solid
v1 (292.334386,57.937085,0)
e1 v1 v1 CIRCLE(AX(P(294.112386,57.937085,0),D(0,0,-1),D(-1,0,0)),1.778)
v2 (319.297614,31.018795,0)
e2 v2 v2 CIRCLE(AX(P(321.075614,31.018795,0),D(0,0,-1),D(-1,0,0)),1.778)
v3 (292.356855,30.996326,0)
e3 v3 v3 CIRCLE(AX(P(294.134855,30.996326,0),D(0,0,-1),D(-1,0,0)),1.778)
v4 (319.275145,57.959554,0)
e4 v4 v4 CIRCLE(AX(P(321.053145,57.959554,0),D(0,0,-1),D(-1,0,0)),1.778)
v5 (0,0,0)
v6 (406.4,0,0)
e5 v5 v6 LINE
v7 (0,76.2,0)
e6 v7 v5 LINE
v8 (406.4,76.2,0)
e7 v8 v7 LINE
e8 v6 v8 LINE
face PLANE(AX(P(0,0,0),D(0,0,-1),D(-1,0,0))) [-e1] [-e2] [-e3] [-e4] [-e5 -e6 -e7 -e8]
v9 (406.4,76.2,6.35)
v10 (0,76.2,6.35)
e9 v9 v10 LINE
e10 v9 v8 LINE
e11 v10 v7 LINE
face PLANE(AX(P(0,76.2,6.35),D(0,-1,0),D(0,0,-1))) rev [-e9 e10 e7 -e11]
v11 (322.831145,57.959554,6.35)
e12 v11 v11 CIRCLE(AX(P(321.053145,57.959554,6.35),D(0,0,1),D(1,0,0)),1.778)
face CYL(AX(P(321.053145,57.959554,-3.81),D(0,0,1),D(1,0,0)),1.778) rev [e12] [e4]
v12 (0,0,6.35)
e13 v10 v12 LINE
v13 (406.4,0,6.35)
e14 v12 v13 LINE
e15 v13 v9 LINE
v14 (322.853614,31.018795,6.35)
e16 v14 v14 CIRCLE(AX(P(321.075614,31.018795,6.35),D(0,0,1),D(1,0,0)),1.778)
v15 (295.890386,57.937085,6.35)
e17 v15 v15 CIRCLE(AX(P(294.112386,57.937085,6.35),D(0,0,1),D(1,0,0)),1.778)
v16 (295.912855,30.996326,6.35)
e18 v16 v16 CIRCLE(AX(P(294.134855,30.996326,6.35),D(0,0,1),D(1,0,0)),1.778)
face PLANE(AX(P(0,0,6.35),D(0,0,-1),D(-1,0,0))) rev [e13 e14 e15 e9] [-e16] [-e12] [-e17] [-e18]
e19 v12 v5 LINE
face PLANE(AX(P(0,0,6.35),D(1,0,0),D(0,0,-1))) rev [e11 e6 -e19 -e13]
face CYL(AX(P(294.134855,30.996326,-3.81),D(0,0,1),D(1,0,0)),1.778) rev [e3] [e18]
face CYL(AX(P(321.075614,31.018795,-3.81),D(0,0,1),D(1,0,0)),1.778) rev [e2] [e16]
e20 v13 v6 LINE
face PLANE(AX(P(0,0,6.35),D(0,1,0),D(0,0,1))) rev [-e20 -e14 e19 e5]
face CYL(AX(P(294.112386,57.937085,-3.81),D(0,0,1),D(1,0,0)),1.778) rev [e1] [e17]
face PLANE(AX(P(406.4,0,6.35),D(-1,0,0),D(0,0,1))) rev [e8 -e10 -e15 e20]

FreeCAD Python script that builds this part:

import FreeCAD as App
import Part
import Sketcher
Q = App.Units.Quantity


def add_polygon(sketch, points):
    """Adds a closed chain of lines whose ends are joined by coincident constraints."""
    first, n = sketch.GeometryCount, len(points)
    for a, b in zip(points, points[1:] + points[:1]):
        sketch.addGeometry(Part.LineSegment(App.Vector(*a, 0), App.Vector(*b, 0)), False)
    for i in range(n):
        sketch.addConstraint(Sketcher.Constraint("Coincident", first + i, 2, first + (i + 1) % n, 1))

doc = App.newDocument("Part")
params = doc.addObject("Spreadsheet::Sheet", "Params")
for row, (alias, value) in enumerate([
    ("sketch1_width", "16 in"),
    ("sketch1_height", "3 in"),
    ("pad1_length", "0.25 in"),
    ("sketch2_diameter", "0.14 in"),
    ("pocket1_length", "0.4 in"),
], start=1):
    params.set(f"A{row}", alias)
    params.set(f"B{row}", "=" + value)
    params.setAlias(f"B{row}", alias)

body = doc.addObject("PartDesign::Body", "Body")

sketch1 = body.newObject("Sketcher::SketchObject", "Sketch")
sketch1.AttachmentSupport = (doc.getObject("XY_Plane"), [""])
sketch1.MapMode = "FlatFace"
add_polygon(sketch1, [(0, 76), (0, 0), (406, 0), (406, 76)])
sketch1.addConstraint(Sketcher.Constraint("Vertical", 0))
sketch1.addConstraint(Sketcher.Constraint("Horizontal", 1))
sketch1.addConstraint(Sketcher.Constraint("Vertical", 2))
sketch1.addConstraint(Sketcher.Constraint("Horizontal", 3))
sketch1.addConstraint(Sketcher.Constraint("Coincident", 0, 2, -1, 1))
sketch1.addConstraint(Sketcher.Constraint("DistanceX", 1, 1, 1, 2, Q("16 in")))
sketch1.addConstraint(Sketcher.Constraint("DistanceY", 0, 2, 0, 1, Q("3 in")))
sketch1.setExpression("Constraints[9]", "Params.sketch1_width")
sketch1.setExpression("Constraints[10]", "Params.sketch1_height")
pad1 = body.newObject("PartDesign::Pad", "Pad")
pad1.Profile = sketch1
pad1.setExpression("Length", "Params.pad1_length")

sketch2 = body.newObject("Sketcher::SketchObject", "Sketch001")
sketch2.AttachmentSupport = (doc.getObject("XY_Plane"), [""])
sketch2.MapMode = "FlatFace"
sketch2.AttachmentOffset = App.Placement(App.Vector(0, 0, 0.25 * 25.4), App.Rotation())
sketch2.addGeometry(Part.Circle(App.Vector(294.1, 57.9, 0), App.Vector(0, 0, 1), 1.8), False)
sketch2.addGeometry(Part.Circle(App.Vector(321.1, 58, 0), App.Vector(0, 0, 1), 1.8), False)
sketch2.addGeometry(Part.Circle(App.Vector(321.1, 31, 0), App.Vector(0, 0, 1), 1.8), False)
sketch2.addGeometry(Part.Circle(App.Vector(294.1, 31, 0), App.Vector(0, 0, 1), 1.8), False)
sketch2.addConstraint(Sketcher.Constraint("Equal", 0, 1))
sketch2.addConstraint(Sketcher.Constraint("Equal", 1, 2))
sketch2.addConstraint(Sketcher.Constraint("Equal", 2, 3))
sketch2.addConstraint(Sketcher.Constraint("Diameter", 0, Q("0.14 in")))
sketch2.addConstraint(Sketcher.Constraint("DistanceX", 0, 3, 1, 3, 26.940759))
sketch2.addConstraint(Sketcher.Constraint("DistanceY", 0, 3, 1, 3, 0.022469))
sketch2.addConstraint(Sketcher.Constraint("DistanceX", 1, 3, 2, 3, 0.022469))
sketch2.addConstraint(Sketcher.Constraint("DistanceY", 2, 3, 1, 3, 26.940759))
sketch2.addConstraint(Sketcher.Constraint("DistanceX", 3, 3, 2, 3, 26.940759))
sketch2.addConstraint(Sketcher.Constraint("DistanceY", 3, 3, 2, 3, 0.022469))
sketch2.addConstraint(Sketcher.Constraint("DistanceX", -1, 1, 0, 3, 294.112386))
sketch2.addConstraint(Sketcher.Constraint("DistanceY", -1, 1, 0, 3, 57.937085))
sketch2.setExpression("Constraints[3]", "Params.sketch2_diameter")
pocket1 = body.newObject("PartDesign::Pocket", "Pocket")
pocket1.Profile = sketch2
pocket1.setExpression("Length", "Params.pocket1_length")

doc.recompute()
